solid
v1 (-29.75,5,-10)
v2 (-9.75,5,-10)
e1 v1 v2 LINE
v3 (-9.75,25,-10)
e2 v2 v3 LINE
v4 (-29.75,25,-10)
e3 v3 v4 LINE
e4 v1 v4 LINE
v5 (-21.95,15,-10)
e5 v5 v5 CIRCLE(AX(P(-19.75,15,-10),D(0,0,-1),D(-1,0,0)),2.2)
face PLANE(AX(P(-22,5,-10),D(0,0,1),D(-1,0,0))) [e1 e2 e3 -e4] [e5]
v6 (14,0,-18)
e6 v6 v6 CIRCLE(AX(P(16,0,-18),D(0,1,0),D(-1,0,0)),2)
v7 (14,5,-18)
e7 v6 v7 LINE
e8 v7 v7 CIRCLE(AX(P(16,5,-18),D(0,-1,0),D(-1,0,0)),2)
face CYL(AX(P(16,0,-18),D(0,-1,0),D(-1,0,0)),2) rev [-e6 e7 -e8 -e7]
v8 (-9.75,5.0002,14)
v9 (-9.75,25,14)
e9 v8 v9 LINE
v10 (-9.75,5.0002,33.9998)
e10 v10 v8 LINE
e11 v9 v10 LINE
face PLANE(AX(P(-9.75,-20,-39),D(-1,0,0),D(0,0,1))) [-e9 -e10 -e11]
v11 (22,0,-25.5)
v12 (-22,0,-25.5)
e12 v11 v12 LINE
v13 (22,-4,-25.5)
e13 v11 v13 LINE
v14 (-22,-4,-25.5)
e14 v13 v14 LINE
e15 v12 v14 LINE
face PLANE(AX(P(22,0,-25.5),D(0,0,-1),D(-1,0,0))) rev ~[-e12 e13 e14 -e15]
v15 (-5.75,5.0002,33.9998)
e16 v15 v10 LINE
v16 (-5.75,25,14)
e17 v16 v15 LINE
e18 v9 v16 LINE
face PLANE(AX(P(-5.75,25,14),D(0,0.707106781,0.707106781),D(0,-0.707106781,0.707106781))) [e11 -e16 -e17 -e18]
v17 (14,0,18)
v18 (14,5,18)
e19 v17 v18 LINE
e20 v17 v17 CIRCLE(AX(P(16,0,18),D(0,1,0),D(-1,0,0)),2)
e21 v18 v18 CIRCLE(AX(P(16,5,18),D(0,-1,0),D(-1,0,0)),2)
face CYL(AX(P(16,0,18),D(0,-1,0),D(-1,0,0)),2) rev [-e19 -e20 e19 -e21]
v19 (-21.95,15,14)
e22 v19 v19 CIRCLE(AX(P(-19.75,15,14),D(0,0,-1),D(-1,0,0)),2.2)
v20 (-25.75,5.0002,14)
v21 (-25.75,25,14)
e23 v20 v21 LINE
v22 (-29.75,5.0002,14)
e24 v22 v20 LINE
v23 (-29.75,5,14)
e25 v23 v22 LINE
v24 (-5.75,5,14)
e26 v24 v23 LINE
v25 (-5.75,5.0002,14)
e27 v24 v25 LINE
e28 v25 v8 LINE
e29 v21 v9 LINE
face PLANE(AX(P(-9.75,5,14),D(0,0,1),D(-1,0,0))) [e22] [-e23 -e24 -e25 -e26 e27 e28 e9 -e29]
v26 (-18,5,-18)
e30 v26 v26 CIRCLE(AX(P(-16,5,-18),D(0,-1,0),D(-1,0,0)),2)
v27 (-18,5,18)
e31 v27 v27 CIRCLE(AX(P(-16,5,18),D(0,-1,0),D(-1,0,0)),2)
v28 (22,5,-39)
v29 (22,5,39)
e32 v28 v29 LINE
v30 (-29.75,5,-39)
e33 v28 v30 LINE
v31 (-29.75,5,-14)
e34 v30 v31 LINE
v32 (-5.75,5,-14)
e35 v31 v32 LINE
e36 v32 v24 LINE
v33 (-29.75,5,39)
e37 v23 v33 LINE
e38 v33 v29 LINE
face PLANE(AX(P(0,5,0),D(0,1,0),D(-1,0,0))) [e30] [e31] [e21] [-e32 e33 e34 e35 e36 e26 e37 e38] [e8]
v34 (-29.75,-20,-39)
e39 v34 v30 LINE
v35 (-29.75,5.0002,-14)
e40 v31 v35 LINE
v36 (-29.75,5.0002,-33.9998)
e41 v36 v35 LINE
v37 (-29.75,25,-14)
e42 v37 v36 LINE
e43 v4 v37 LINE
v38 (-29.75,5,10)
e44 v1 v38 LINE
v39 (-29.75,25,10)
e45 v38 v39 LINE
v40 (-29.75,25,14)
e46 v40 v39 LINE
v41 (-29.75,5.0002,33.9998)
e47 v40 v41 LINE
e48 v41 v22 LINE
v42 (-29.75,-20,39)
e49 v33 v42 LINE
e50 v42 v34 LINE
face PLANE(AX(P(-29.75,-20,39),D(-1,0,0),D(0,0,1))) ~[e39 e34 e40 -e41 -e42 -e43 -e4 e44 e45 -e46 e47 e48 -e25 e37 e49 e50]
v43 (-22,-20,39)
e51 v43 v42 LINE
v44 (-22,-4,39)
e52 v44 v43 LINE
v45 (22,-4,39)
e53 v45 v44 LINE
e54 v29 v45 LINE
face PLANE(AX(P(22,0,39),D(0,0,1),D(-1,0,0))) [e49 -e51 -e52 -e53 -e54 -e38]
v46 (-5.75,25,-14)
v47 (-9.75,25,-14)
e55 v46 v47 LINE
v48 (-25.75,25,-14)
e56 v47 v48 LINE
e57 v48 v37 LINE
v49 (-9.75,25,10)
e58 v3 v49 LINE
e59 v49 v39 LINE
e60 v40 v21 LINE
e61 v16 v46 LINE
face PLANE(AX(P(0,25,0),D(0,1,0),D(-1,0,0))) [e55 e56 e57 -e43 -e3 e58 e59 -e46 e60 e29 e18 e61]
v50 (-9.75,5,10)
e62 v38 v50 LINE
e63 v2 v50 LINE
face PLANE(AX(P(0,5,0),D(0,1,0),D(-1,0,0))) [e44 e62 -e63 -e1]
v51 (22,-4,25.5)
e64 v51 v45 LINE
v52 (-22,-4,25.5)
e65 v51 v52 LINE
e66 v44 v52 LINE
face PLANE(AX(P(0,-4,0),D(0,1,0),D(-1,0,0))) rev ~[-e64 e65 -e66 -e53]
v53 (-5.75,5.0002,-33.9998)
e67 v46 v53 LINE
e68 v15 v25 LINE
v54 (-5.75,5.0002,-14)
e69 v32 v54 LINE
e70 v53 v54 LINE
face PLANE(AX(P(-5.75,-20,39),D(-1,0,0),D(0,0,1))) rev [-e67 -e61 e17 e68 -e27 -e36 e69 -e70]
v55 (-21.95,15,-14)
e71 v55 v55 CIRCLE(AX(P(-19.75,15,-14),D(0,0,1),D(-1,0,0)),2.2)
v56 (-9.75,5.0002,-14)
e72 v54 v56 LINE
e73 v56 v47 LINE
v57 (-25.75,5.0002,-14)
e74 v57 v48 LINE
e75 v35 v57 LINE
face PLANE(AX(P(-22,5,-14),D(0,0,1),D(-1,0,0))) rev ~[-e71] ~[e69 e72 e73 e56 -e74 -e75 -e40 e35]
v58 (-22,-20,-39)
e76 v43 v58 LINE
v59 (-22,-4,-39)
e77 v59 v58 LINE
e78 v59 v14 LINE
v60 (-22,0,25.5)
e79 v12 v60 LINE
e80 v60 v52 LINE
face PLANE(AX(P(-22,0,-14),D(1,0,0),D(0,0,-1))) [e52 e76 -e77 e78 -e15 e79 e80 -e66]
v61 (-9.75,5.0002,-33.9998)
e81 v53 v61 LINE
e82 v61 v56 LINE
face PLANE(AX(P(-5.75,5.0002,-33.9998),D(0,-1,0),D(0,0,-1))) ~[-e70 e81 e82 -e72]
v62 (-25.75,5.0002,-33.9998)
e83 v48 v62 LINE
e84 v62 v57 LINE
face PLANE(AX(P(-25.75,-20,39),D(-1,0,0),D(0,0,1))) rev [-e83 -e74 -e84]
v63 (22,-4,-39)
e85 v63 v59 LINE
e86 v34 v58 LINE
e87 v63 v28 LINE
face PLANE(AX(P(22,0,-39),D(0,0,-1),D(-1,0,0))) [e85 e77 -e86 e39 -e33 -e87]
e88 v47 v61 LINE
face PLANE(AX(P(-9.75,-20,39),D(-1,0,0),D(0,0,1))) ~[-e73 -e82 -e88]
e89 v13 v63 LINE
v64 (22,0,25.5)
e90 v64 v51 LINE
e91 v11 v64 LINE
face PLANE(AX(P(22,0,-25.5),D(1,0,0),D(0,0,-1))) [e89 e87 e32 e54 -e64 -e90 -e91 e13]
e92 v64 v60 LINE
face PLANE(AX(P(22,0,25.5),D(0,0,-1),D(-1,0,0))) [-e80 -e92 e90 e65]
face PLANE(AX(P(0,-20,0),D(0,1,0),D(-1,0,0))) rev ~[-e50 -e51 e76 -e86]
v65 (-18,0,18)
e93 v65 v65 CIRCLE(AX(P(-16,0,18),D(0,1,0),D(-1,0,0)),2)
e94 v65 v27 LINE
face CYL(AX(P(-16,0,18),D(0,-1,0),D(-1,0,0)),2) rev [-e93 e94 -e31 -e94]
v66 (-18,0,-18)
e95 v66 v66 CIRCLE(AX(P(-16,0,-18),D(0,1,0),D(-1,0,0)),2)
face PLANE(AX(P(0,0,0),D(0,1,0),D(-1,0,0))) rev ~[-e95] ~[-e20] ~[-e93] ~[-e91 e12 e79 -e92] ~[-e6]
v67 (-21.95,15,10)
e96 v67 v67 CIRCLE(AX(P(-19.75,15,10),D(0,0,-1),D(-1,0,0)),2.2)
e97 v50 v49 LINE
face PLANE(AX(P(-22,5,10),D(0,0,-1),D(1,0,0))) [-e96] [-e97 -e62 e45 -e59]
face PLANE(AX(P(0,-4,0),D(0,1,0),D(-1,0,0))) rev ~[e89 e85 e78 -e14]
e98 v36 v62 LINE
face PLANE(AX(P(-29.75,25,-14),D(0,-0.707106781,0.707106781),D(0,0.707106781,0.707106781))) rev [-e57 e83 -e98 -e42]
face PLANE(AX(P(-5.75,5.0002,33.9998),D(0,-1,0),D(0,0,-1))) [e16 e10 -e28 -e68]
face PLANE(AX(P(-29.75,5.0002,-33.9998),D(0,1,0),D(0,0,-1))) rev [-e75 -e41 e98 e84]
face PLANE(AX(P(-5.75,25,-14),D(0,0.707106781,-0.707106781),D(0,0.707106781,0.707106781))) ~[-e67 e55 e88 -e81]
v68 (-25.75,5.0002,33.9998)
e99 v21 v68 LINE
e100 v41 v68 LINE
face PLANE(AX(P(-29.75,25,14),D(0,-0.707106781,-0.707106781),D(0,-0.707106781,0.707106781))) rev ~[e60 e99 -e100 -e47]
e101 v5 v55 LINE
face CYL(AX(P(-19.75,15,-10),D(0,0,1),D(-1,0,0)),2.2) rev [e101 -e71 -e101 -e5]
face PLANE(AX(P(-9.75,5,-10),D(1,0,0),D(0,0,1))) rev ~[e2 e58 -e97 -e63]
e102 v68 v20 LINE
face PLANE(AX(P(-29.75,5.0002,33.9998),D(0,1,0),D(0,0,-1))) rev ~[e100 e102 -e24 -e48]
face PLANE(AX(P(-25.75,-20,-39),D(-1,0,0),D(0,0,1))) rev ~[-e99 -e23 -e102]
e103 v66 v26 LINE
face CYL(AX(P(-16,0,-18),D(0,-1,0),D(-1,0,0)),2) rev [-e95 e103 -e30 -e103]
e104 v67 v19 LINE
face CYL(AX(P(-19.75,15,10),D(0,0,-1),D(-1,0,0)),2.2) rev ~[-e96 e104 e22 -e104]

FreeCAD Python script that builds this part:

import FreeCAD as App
import Part
import Sketcher
from FreeCAD import Vector

doc = App.newDocument("Part")
body = doc.addObject("PartDesign::Body", "Body")
body.AllowCompound = True

# Sketch on XZ plane
sketch1 = body.newObject("Sketcher::SketchObject", "Sketch")
sketch1.AttachmentSupport = (doc.getObject("XZ_Plane"), [""])
sketch1.MapMode = "FlatFace"
sketch1.addGeometry(Part.LineSegment(Vector(-22, -25.5, 0), Vector(22, -25.5, 0)), False)
sketch1.addGeometry(Part.LineSegment(Vector(22, -25.5, 0), Vector(22, -39, 0)), False)
sketch1.addGeometry(Part.LineSegment(Vector(22, -39, 0), Vector(-22, -39, 0)), False)
sketch1.addGeometry(Part.LineSegment(Vector(-22, -39, 0), Vector(-22, -25.5, 0)), False)
sketch1.addGeometry(Part.LineSegment(Vector(22, 39, 0), Vector(22, 25.5, 0)), False)
sketch1.addGeometry(Part.LineSegment(Vector(22, 25.5, 0), Vector(-22, 25.5, 0)), False)
sketch1.addGeometry(Part.LineSegment(Vector(-22, 25.5, 0), Vector(-22, 39, 0)), False)
sketch1.addGeometry(Part.LineSegment(Vector(-22, 39, 0), Vector(22, 39, 0)), False)
sketch1.addConstraint(Sketcher.Constraint("Coincident", 0, 2, 1, 1))
sketch1.addConstraint(Sketcher.Constraint("Coincident", 1, 2, 2, 1))
sketch1.addConstraint(Sketcher.Constraint("Coincident", 2, 2, 3, 1))
sketch1.addConstraint(Sketcher.Constraint("Coincident", 3, 2, 0, 1))
sketch1.addConstraint(Sketcher.Constraint("Coincident", 4, 2, 5, 1))
sketch1.addConstraint(Sketcher.Constraint("Coincident", 5, 2, 6, 1))
sketch1.addConstraint(Sketcher.Constraint("Coincident", 6, 2, 7, 1))
sketch1.addConstraint(Sketcher.Constraint("Coincident", 7, 2, 4, 1))
sketch1.addConstraint(Sketcher.Constraint("Horizontal", 0))
sketch1.addConstraint(Sketcher.Constraint("Vertical", 1))
sketch1.addConstraint(Sketcher.Constraint("Horizontal", 2))
sketch1.addConstraint(Sketcher.Constraint("Vertical", 3))
sketch1.addConstraint(Sketcher.Constraint("Vertical", 4))
sketch1.addConstraint(Sketcher.Constraint("Horizontal", 5))
sketch1.addConstraint(Sketcher.Constraint("Vertical", 6))
sketch1.addConstraint(Sketcher.Constraint("Horizontal", 7))
sketch1.addConstraint(Sketcher.Constraint("Symmetric", 3, 2, 4, 2, -1, 1))
sketch1.addConstraint(Sketcher.Constraint("Symmetric", 1, 2, 6, 2, -1, 1))
sketch1.addConstraint(Sketcher.Constraint("Vertical", 1, 2, 4, 2))
sketch1.addConstraint(Sketcher.Constraint("DistanceX", 0, 1, 0, 2, 44.0))
sketch1.addConstraint(Sketcher.Constraint("DistanceY", 1, 2, 1, 1, 13.5))
sketch1.addConstraint(Sketcher.Constraint("DistanceY", 0, 2, 4, 2, 51.0))
pad1 = body.newObject("PartDesign::Pad", "Pad")
pad1.Profile = sketch1
pad1.Length = 4

# Sketch on XZ plane
sketch2 = body.newObject("Sketcher::SketchObject", "Sketch001")
sketch2.AttachmentSupport = (doc.getObject("XZ_Plane"), [""])
sketch2.MapMode = "FlatFace"
sketch2.addGeometry(Part.LineSegment(Vector(22, -39, 0), Vector(-29.75, -39, 0)), False)
sketch2.addGeometry(Part.LineSegment(Vector(-29.75, -39, 0), Vector(-29.75, 39, 0)), False)
sketch2.addGeometry(Part.LineSegment(Vector(-29.75, 39, 0), Vector(22, 39, 0)), False)
sketch2.addGeometry(Part.LineSegment(Vector(22, 39, 0), Vector(22, -39, 0)), False)
sketch2.addConstraint(Sketcher.Constraint("Coincident", 0, 2, 1, 1))
sketch2.addConstraint(Sketcher.Constraint("Coincident", 1, 2, 2, 1))
sketch2.addConstraint(Sketcher.Constraint("Coincident", 2, 2, 3, 1))
sketch2.addConstraint(Sketcher.Constraint("Coincident", 3, 2, 0, 1))
sketch2.addConstraint(Sketcher.Constraint("Horizontal", 0))
sketch2.addConstraint(Sketcher.Constraint("Vertical", 1))
sketch2.addConstraint(Sketcher.Constraint("Horizontal", 2))
sketch2.addConstraint(Sketcher.Constraint("Vertical", 3))
sketch2.addConstraint(Sketcher.Constraint("DistanceY", 1, 1, 1, 2, 78.0))
sketch2.addConstraint(Sketcher.Constraint("DistanceY", 0, 2, -1, 1, 39.0))
sketch2.addConstraint(Sketcher.Constraint("DistanceX", -1, 1, 2, 2, 22.0))
sketch2.addConstraint(Sketcher.Constraint("DistanceX", 0, 2, 0, 1, 51.75))
pad2 = body.newObject("PartDesign::Pad", "Pad001")
pad2.Profile = sketch2
pad2.Length = 5
pad2.Reversed = True

# Sketch on XZ plane
sketch3 = body.newObject("Sketcher::SketchObject", "Sketch002")
sketch3.AttachmentSupport = (doc.getObject("XZ_Plane"), [""])
sketch3.MapMode = "FlatFace"
sketch3.addGeometry(Part.LineSegment(Vector(-22, -39, 0), Vector(-29.75, -39, 0)), False)
sketch3.addGeometry(Part.LineSegment(Vector(-29.75, -39, 0), Vector(-29.75, 39, 0)), False)
sketch3.addGeometry(Part.LineSegment(Vector(-29.75, 39, 0), Vector(-22, 39, 0)), False)
sketch3.addGeometry(Part.LineSegment(Vector(-22, 39, 0), Vector(-22, -39, 0)), False)
sketch3.addConstraint(Sketcher.Constraint("Coincident", 0, 2, 1, 1))
sketch3.addConstraint(Sketcher.Constraint("Coincident", 1, 2, 2, 1))
sketch3.addConstraint(Sketcher.Constraint("Coincident", 2, 2, 3, 1))
sketch3.addConstraint(Sketcher.Constraint("Coincident", 3, 2, 0, 1))
sketch3.addConstraint(Sketcher.Constraint("Horizontal", 0))
sketch3.addConstraint(Sketcher.Constraint("Vertical", 1))
sketch3.addConstraint(Sketcher.Constraint("Horizontal", 2))
sketch3.addConstraint(Sketcher.Constraint("Vertical", 3))
sketch3.addConstraint(Sketcher.Constraint("DistanceY", 1, 1, 1, 2, 78.0))
sketch3.addConstraint(Sketcher.Constraint("DistanceY", 0, 2, -1, 1, 39.0))
sketch3.addConstraint(Sketcher.Constraint("DistanceX", 2, 2, -1, 1, 22.0))
sketch3.addConstraint(Sketcher.Constraint("DistanceX", 0, 2, 0, 1, 7.75))
pad3 = body.newObject("PartDesign::Pad", "Pad002")
pad3.Profile = sketch3
pad3.Length = 20

# Sketch on XZ plane
sketch4 = body.newObject("Sketcher::SketchObject", "Sketch003")
sketch4.AttachmentSupport = (doc.getObject("XZ_Plane"), [""])
sketch4.MapMode = "FlatFace"
sketch4.AttachmentOffset = App.Placement(Vector(0, 0, -5), App.Rotation())
sketch4.addGeometry(Part.LineSegment(Vector(-29.75, -10, 0), Vector(-9.75, -10, 0)), False)
sketch4.addGeometry(Part.LineSegment(Vector(-9.75, -10, 0), Vector(-9.75, 10, 0)), False)
sketch4.addGeometry(Part.LineSegment(Vector(-9.75, 10, 0), Vector(-29.75, 10, 0)), False)
sketch4.addGeometry(Part.LineSegment(Vector(-29.75, 10, 0), Vector(-29.75, 14, 0)), False)
sketch4.addGeometry(Part.LineSegment(Vector(-29.75, 14, 0), Vector(-5.75, 14, 0)), False)
sketch4.addGeometry(Part.LineSegment(Vector(-5.75, 14, 0), Vector(-5.75, -14, 0)), False)
sketch4.addGeometry(Part.LineSegment(Vector(-5.75, -14, 0), Vector(-29.75, -14, 0)), False)
sketch4.addGeometry(Part.LineSegment(Vector(-29.75, -14, 0), Vector(-29.75, -10, 0)), False)
sketch4.addConstraint(Sketcher.Constraint("Coincident", 0, 2, 1, 1))
sketch4.addConstraint(Sketcher.Constraint("Coincident", 1, 2, 2, 1))
sketch4.addConstraint(Sketcher.Constraint("Coincident", 2, 2, 3, 1))
sketch4.addConstraint(Sketcher.Constraint("Coincident", 3, 2, 4, 1))
sketch4.addConstraint(Sketcher.Constraint("Coincident", 4, 2, 5, 1))
sketch4.addConstraint(Sketcher.Constraint("Coincident", 5, 2, 6, 1))
sketch4.addConstraint(Sketcher.Constraint("Coincident", 6, 2, 7, 1))
sketch4.addConstraint(Sketcher.Constraint("Coincident", 7, 2, 0, 1))
sketch4.addConstraint(Sketcher.Constraint("Horizontal", 0))
sketch4.addConstraint(Sketcher.Constraint("Vertical", 1))
sketch4.addConstraint(Sketcher.Constraint("Horizontal", 2))
sketch4.addConstraint(Sketcher.Constraint("Vertical", 3))
sketch4.addConstraint(Sketcher.Constraint("Horizontal", 4))
sketch4.addConstraint(Sketcher.Constraint("Vertical", 5))
sketch4.addConstraint(Sketcher.Constraint("Horizontal", 6))
sketch4.addConstraint(Sketcher.Constraint("Vertical", 7))
sketch4.addConstraint(Sketcher.Constraint("Symmetric", 3, 2, 6, 2, -1))
sketch4.addConstraint(Sketcher.Constraint("Equal", 2, 1))
sketch4.addConstraint(Sketcher.Constraint("Equal", 3, 7))
sketch4.addConstraint(Sketcher.Constraint("DistanceX", 0, 1, 0, 2, 20.0))
sketch4.addConstraint(Sketcher.Constraint("DistanceY", 3, 1, 3, 2, 4.0))
sketch4.addConstraint(Sketcher.Constraint("DistanceX", 1, 2, 4, 2, 4.0))
sketch4.addConstraint(Sketcher.Constraint("DistanceX", 0, 2, -1, 1, 9.75))
pad4 = body.newObject("PartDesign::Pad", "Pad003")
pad4.Profile = sketch4
pad4.Length = 20
pad4.Reversed = True

# Sketch on XZ plane
sketch5 = body.newObject("Sketcher::SketchObject", "Sketch004")
sketch5.AttachmentSupport = (doc.getObject("XZ_Plane"), [""])
sketch5.MapMode = "FlatFace"
sketch5.addGeometry(Part.Circle(Vector(-16, -18, 0), Vector(0, 0, 1), 2), False)
sketch5.addGeometry(Part.Circle(Vector(16, 18, 0), Vector(0, 0, 1), 2), False)
sketch5.addGeometry(Part.Circle(Vector(16, -18, 0), Vector(0, 0, 1), 2), False)
sketch5.addGeometry(Part.Circle(Vector(-16, 18, 0), Vector(0, 0, 1), 2), False)
sketch5.addConstraint(Sketcher.Constraint("Equal", 0, 1))
sketch5.addConstraint(Sketcher.Constraint("Equal", 1, 2))
sketch5.addConstraint(Sketcher.Constraint("Equal", 2, 3))
sketch5.addConstraint(Sketcher.Constraint("Symmetric", 0, 3, 1, 3, -1, 1))
sketch5.addConstraint(Sketcher.Constraint("Symmetric", 2, 3, 3, 3, -1, 1))
sketch5.addConstraint(Sketcher.Constraint("Symmetric", 0, 3, 2, 3, -2))
sketch5.addConstraint(Sketcher.Constraint("Diameter", 0, 4.0))
sketch5.addConstraint(Sketcher.Constraint("DistanceX", 0, 3, 1, 3, 32.0))
sketch5.addConstraint(Sketcher.Constraint("DistanceY", 0, 3, 1, 3, 36.0))
pocket1 = body.newObject("PartDesign::Pocket", "Pocket")
pocket1.Profile = sketch5
pocket1.Type = "ThroughAll"

# Sketch on XY plane
sketch6 = body.newObject("Sketcher::SketchObject", "Sketch005")
sketch6.AttachmentSupport = (doc.getObject("XY_Plane"), [""])
sketch6.MapMode = "FlatFace"
sketch6.AttachmentOffset = App.Placement(Vector(0, 0, 10), App.Rotation())
sketch6.addGeometry(Part.Circle(Vector(-19.75, 15, 0), Vector(0, 0, 1), 2.2), False)
sketch6.addConstraint(Sketcher.Constraint("Diameter", 0, 4.4))
sketch6.addConstraint(Sketcher.Constraint("DistanceY", -1, 1, 0, 3, 15.0))
sketch6.addConstraint(Sketcher.Constraint("DistanceX", 0, 3, -1, 1, 19.75))
pocket2 = body.newObject("PartDesign::Pocket", "Pocket001")
pocket2.Profile = sketch6
pocket2.Type = "ThroughAll"
pocket2.Reversed = True

# Sketch on YZ plane
sketch7 = body.newObject("Sketcher::SketchObject", "Sketch006")
sketch7.AttachmentSupport = (doc.getObject("YZ_Plane"), [""])
sketch7.MapMode = "FlatFace"
sketch7.AttachmentOffset = App.Placement(Vector(0, 0, -29.75), App.Rotation())
sketch7.addGeometry(Part.LineSegment(Vector(5.0002, 33.9998, 0), Vector(25, 14, 0)), False)
sketch7.addGeometry(Part.LineSegment(Vector(25, 14, 0), Vector(5.0002, 14, 0)), False)
sketch7.addGeometry(Part.LineSegment(Vector(5.0002, 14, 0), Vector(5.0002, 33.9998, 0)), False)
sketch7.addConstraint(Sketcher.Constraint("Coincident", 0, 2, 1, 1))
sketch7.addConstraint(Sketcher.Constraint("Coincident", 1, 2, 2, 1))
sketch7.addConstraint(Sketcher.Constraint("Coincident", 2, 2, 0, 1))
sketch7.addConstraint(Sketcher.Constraint("Horizontal", 1))
sketch7.addConstraint(Sketcher.Constraint("Vertical", 2))
sketch7.addConstraint(Sketcher.Constraint("Equal", 1, 2))
sketch7.addConstraint(Sketcher.Constraint("Distance", 0, 28.284))
sketch7.addConstraint(Sketcher.Constraint("DistanceX", -1, 1, 0, 2, 25.0))
sketch7.addConstraint(Sketcher.Constraint("DistanceY", -1, 1, 0, 2, 14.0))
pad5 = body.newObject("PartDesign::Pad", "Pad004")
pad5.Profile = sketch7
pad5.Length = 4

# Sketch on YZ plane
sketch8 = body.newObject("Sketcher::SketchObject", "Sketch007")
sketch8.AttachmentSupport = (doc.getObject("YZ_Plane"), [""])
sketch8.MapMode = "FlatFace"
sketch8.AttachmentOffset = App.Placement(Vector(0, 0, -5.75), App.Rotation())
sketch8.addGeometry(Part.LineSegment(Vector(5.0002, 33.9998, 0), Vector(25, 14, 0)), False)
sketch8.addGeometry(Part.LineSegment(Vector(25, 14, 0), Vector(5.0002, 14, 0)), False)
sketch8.addGeometry(Part.LineSegment(Vector(5.0002, 14, 0), Vector(5.0002, 33.9998, 0)), False)
sketch8.addConstraint(Sketcher.Constraint("Coincident", 0, 2, 1, 1))
sketch8.addConstraint(Sketcher.Constraint("Coincident", 1, 2, 2, 1))
sketch8.addConstraint(Sketcher.Constraint("Coincident", 2, 2, 0, 1))
sketch8.addConstraint(Sketcher.Constraint("Horizontal", 1))
sketch8.addConstraint(Sketcher.Constraint("Vertical", 2))
sketch8.addConstraint(Sketcher.Constraint("Equal", 1, 2))
sketch8.addConstraint(Sketcher.Constraint("Distance", 0, 28.284))
sketch8.addConstraint(Sketcher.Constraint("DistanceX", -1, 1, 0, 2, 25.0))
sketch8.addConstraint(Sketcher.Constraint("DistanceY", -1, 1, 0, 2, 14.0))
pad6 = body.newObject("PartDesign::Pad", "Pad005")
pad6.Profile = sketch8
pad6.Length = 4
pad6.Reversed = True
doc.recompute()

mirrored = body.newObject("PartDesign::Mirrored", "Mirrored")
mirrored.Originals = [pad5, pad6, pocket2]
mirrored.MirrorPlane = (doc.getObject("XY_Plane"), [""])
body.Tip = mirrored

doc.recompute()
